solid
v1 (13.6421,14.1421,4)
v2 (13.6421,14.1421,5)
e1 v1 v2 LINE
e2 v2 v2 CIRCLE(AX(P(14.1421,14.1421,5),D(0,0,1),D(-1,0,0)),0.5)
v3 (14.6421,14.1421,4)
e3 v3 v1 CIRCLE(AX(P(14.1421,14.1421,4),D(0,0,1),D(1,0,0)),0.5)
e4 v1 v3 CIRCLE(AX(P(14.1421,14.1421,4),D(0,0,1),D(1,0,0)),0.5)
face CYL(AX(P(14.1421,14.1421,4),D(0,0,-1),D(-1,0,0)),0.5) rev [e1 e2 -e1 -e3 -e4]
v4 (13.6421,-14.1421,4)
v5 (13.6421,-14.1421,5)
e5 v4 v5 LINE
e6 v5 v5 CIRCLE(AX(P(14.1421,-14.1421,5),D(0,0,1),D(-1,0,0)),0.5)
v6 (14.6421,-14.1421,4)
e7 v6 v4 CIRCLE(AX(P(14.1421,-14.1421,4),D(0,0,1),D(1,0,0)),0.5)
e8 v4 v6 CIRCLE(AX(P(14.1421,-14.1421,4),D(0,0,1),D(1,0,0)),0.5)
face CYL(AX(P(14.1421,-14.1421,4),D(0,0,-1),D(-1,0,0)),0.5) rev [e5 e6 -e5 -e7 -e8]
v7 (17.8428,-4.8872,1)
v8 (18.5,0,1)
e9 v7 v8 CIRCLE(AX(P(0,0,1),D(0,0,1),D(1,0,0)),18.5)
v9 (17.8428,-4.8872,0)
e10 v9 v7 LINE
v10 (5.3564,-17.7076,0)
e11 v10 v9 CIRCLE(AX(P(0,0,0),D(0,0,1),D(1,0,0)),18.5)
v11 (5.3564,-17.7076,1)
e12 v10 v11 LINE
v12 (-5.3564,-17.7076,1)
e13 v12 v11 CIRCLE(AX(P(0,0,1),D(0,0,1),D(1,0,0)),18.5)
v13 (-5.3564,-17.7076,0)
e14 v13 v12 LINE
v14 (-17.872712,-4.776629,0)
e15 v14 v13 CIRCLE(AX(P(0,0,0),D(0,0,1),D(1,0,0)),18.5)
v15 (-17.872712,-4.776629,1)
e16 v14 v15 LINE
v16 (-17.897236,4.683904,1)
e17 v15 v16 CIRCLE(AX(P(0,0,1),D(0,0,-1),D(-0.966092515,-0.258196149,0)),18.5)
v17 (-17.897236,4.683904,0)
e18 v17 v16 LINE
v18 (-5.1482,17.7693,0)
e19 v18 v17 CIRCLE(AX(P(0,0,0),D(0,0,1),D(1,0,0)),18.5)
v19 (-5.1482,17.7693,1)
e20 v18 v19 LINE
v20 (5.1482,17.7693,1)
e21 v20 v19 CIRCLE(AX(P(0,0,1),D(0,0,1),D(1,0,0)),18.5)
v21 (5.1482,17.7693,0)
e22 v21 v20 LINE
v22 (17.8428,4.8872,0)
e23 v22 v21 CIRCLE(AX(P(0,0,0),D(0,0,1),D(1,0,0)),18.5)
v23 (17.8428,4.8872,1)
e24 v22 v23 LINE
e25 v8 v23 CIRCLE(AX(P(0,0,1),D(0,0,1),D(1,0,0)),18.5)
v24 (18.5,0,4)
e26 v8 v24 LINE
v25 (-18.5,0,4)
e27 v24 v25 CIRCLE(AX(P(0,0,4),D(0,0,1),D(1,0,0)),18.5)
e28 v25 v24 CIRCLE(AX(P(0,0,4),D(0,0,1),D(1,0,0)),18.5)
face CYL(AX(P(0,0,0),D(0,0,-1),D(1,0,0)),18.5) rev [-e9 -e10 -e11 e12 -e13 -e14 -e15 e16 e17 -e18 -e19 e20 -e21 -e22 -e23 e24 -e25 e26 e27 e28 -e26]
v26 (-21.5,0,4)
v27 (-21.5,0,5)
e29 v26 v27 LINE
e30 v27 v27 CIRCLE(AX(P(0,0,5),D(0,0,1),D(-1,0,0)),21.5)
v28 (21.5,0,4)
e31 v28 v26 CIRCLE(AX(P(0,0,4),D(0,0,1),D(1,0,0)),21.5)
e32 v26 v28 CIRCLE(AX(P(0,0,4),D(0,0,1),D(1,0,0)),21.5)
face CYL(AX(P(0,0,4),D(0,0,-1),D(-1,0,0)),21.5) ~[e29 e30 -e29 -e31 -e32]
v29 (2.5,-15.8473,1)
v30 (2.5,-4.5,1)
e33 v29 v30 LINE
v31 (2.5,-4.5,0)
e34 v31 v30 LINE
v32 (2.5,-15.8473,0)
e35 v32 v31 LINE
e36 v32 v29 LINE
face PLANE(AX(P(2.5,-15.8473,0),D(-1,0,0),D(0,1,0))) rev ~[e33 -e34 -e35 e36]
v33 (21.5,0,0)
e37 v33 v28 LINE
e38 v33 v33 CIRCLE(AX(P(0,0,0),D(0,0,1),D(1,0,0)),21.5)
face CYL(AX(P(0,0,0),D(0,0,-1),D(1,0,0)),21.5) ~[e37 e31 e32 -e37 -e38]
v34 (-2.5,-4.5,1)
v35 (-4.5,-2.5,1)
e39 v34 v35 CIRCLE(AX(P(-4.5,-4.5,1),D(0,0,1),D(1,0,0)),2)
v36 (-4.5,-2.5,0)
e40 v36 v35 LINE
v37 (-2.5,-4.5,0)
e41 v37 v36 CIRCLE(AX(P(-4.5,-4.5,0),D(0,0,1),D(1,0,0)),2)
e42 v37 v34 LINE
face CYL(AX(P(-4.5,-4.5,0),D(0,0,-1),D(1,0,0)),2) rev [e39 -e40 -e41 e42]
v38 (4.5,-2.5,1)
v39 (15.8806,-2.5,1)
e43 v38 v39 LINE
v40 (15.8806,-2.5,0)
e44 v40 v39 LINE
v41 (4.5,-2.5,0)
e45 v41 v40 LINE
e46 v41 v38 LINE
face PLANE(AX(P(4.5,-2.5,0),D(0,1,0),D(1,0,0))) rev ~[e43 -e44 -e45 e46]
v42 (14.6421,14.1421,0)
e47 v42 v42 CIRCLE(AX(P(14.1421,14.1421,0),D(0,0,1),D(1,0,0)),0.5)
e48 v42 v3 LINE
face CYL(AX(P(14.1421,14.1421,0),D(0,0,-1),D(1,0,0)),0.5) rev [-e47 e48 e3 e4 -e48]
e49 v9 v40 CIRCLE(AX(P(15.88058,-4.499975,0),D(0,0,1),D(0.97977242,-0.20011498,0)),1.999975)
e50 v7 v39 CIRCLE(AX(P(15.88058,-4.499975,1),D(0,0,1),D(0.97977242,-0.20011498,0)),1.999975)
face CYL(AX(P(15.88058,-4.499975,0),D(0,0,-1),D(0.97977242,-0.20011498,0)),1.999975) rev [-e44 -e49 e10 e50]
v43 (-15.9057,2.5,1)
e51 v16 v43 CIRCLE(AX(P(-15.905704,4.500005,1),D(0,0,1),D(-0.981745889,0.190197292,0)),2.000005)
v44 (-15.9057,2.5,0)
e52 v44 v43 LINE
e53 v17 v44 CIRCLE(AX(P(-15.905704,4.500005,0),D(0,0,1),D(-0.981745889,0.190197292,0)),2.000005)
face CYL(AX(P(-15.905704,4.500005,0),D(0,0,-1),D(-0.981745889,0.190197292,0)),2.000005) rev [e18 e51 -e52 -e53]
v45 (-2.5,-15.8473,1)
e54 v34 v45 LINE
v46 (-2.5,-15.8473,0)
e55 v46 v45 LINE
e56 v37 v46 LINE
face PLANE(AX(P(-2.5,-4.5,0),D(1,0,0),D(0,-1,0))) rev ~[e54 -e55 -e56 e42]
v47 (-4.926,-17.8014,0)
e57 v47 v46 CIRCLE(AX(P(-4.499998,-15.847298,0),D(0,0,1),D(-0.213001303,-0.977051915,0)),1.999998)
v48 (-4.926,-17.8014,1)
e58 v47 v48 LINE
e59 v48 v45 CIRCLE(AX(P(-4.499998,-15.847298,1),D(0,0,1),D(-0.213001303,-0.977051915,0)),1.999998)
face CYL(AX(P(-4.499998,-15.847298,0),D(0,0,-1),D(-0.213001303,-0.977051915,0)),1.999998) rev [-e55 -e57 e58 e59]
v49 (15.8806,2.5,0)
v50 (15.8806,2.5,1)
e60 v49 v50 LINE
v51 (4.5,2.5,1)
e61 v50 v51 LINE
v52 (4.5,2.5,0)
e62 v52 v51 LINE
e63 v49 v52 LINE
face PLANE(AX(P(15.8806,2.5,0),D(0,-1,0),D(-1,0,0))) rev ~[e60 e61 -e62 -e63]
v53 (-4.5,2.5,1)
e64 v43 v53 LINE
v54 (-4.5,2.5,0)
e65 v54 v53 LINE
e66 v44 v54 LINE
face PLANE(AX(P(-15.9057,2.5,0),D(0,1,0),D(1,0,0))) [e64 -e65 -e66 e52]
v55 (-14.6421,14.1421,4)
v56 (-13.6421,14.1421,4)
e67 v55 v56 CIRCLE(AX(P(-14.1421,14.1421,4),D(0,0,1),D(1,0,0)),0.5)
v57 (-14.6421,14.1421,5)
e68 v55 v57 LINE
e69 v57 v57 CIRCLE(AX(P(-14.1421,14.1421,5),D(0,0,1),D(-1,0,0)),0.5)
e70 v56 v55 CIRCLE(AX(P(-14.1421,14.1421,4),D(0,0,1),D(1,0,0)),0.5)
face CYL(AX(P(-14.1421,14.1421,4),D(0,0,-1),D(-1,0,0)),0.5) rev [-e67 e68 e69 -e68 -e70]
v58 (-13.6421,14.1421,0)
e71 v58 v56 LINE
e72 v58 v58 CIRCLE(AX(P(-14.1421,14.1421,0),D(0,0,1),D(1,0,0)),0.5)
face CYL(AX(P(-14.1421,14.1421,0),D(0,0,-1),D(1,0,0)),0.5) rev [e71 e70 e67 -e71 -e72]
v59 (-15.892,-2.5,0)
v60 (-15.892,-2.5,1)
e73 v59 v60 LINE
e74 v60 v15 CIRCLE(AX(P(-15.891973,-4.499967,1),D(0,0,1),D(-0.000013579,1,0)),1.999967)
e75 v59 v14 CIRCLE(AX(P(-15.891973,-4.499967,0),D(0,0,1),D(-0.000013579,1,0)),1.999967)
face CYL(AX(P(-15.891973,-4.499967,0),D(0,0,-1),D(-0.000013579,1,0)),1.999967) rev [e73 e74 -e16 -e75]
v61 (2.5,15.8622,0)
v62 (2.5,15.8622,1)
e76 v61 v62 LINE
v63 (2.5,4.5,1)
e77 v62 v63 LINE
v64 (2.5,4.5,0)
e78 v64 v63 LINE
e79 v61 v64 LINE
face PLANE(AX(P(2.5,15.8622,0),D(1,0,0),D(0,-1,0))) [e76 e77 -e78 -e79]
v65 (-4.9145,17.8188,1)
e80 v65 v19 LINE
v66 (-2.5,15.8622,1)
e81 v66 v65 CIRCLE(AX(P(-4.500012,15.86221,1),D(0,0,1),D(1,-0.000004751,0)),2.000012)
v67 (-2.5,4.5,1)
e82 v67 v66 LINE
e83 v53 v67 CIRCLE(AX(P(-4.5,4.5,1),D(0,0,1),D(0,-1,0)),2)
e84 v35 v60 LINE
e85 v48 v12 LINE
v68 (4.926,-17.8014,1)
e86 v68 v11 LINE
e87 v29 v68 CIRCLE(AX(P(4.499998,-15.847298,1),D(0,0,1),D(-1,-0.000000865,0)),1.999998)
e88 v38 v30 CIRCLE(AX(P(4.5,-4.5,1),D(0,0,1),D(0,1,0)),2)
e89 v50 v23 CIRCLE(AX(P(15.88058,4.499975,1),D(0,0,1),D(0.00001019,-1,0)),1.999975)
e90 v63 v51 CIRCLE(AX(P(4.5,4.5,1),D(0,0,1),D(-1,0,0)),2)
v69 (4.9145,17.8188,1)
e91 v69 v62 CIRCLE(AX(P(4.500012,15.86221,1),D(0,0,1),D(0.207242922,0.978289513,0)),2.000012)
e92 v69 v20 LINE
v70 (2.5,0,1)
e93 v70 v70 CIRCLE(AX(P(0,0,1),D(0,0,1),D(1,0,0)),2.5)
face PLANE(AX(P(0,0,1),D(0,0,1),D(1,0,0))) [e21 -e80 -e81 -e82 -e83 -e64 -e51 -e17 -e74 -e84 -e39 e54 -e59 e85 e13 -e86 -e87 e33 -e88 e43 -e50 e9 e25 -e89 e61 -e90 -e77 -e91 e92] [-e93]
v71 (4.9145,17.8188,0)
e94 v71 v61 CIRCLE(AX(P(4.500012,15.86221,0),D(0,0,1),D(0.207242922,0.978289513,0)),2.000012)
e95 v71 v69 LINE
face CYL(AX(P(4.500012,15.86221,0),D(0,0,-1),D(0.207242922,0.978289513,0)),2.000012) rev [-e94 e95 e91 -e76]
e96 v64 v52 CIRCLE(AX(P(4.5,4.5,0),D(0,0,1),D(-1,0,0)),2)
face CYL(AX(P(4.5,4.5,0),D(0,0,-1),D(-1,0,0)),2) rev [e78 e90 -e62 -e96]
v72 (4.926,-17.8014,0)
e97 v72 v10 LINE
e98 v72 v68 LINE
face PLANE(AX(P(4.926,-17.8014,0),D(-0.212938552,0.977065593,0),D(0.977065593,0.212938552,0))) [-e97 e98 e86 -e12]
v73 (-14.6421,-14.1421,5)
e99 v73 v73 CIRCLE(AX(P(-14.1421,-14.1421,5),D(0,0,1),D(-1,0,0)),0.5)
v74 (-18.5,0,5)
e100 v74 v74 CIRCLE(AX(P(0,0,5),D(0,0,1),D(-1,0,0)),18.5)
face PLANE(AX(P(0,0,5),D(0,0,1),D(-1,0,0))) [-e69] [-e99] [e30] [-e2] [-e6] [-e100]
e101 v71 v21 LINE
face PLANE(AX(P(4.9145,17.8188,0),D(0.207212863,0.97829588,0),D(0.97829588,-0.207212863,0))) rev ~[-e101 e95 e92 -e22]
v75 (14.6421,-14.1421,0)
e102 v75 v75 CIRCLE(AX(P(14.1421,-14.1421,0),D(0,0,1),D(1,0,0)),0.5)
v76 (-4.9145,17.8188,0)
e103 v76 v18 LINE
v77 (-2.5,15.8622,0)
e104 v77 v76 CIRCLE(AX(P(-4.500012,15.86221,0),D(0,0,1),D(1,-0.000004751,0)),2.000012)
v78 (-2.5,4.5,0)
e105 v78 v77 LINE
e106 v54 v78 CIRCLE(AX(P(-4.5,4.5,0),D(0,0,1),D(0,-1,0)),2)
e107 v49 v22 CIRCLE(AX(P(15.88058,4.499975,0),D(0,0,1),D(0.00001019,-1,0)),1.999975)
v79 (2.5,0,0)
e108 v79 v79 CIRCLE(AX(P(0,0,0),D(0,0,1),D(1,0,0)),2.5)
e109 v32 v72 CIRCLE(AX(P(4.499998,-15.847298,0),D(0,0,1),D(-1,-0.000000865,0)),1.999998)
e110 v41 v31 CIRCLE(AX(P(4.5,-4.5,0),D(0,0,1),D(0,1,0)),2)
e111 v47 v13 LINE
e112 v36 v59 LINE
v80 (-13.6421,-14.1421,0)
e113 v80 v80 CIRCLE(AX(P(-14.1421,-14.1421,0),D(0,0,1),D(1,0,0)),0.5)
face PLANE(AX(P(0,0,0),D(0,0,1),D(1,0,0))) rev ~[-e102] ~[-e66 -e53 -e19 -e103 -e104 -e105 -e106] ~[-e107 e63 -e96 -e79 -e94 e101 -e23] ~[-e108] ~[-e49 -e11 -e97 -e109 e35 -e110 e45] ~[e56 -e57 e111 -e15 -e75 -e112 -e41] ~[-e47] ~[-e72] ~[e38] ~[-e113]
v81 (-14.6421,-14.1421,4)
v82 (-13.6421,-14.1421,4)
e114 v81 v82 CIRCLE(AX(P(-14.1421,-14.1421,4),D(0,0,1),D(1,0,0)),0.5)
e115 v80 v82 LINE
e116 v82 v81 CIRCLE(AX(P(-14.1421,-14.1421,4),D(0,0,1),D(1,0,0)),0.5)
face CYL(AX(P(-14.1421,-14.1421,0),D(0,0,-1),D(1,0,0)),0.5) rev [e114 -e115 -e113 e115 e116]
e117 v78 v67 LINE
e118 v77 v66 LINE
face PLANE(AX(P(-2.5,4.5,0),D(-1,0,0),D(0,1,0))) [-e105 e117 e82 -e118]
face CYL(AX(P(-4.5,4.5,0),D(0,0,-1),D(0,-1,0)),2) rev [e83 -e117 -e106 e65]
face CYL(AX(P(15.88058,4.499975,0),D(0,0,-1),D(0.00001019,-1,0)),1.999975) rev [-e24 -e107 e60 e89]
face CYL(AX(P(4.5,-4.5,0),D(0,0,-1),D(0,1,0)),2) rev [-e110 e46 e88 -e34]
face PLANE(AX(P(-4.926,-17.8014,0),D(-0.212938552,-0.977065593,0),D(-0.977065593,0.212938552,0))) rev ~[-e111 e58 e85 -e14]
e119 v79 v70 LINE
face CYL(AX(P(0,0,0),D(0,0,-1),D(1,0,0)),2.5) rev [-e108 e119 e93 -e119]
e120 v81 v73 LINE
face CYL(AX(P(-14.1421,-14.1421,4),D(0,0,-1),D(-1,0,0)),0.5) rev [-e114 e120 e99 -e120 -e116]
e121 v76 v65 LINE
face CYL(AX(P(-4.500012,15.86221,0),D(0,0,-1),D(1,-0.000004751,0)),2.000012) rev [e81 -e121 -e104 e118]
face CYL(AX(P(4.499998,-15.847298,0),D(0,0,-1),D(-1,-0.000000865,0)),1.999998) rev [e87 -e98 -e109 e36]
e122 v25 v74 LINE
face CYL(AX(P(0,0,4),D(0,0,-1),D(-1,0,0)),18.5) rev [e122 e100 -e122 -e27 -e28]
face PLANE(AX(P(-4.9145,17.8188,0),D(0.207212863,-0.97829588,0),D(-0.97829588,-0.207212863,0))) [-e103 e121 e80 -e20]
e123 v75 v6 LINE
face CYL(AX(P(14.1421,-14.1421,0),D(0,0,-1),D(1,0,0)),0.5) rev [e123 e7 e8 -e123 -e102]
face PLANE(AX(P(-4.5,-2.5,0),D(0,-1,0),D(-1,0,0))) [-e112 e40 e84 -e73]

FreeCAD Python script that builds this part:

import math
import FreeCAD as App
import Part
import Sketcher
Q = App.Units.Quantity

doc = App.newDocument("Part")
body = doc.addObject("PartDesign::Body", "Body")

# Sketch on XY plane
sketch1 = body.newObject("Sketcher::SketchObject", "Sketch")
sketch1.AttachmentSupport = (doc.getObject("XY_Plane"), [""])
sketch1.MapMode = "FlatFace"
sketch1.addGeometry([
    Part.ArcOfCircle(Part.Circle(App.Vector(0, 0, 0), App.Vector(0, 0, 1), 18.5), math.radians(-15), math.radians(15)),  # 0
    Part.ArcOfCircle(Part.Circle(App.Vector(15.88, 4.5, 0), App.Vector(0, 0, 1), 2), math.radians(-90), math.radians(11)),  # 1
    Part.LineSegment(App.Vector(15.88, 2.5, 0), App.Vector(4.5, 2.5, 0)),  # 2
    Part.ArcOfCircle(Part.Circle(App.Vector(4.5, 4.5, 0), App.Vector(0, 0, 1), 2), math.radians(180), math.radians(270)),  # 3
    Part.LineSegment(App.Vector(2.5, 4.5, 0), App.Vector(2.5, 15.86, 0)),  # 4
    Part.ArcOfCircle(Part.Circle(App.Vector(4.5, 15.86, 0), App.Vector(0, 0, 1), 2), math.radians(78), math.radians(180)),  # 5
    Part.LineSegment(App.Vector(4.91, 17.82, 0), App.Vector(5.15, 17.77, 0)),  # 6
    Part.ArcOfCircle(Part.Circle(App.Vector(0, 0, 0), App.Vector(0, 0, 1), 18.5), math.radians(74), math.radians(106)),  # 7
    Part.LineSegment(App.Vector(-5.15, 17.77, 0), App.Vector(-4.91, 17.82, 0)),  # 8
    Part.ArcOfCircle(Part.Circle(App.Vector(-4.5, 15.86, 0), App.Vector(0, 0, 1), 2), math.radians(0), math.radians(102)),  # 9
    Part.LineSegment(App.Vector(-2.5, 15.86, 0), App.Vector(-2.5, 4.5, 0)),  # 10
    Part.ArcOfCircle(Part.Circle(App.Vector(-4.5, 4.5, 0), App.Vector(0, 0, 1), 2), math.radians(-90), math.radians(0)),  # 11
    Part.LineSegment(App.Vector(-4.5, 2.5, 0), App.Vector(-15.91, 2.5, 0)),  # 12
    Part.ArcOfCircle(Part.Circle(App.Vector(-15.91, 4.5, 0), App.Vector(0, 0, 1), 2), math.radians(175), math.radians(270)),  # 13
    Part.ArcOfCircle(Part.Circle(App.Vector(0, 0, 0), App.Vector(0, 0, 1), 18.5), math.radians(165), math.radians(195)),  # 14
    Part.ArcOfCircle(Part.Circle(App.Vector(-15.89, -4.5, 0), App.Vector(0, 0, 1), 2), math.radians(90), math.radians(188)),  # 15
    Part.LineSegment(App.Vector(-15.89, -2.5, 0), App.Vector(-4.5, -2.5, 0)),  # 16
    Part.ArcOfCircle(Part.Circle(App.Vector(-4.5, -4.5, 0), App.Vector(0, 0, 1), 2), math.radians(0), math.radians(90)),  # 17
    Part.LineSegment(App.Vector(-2.5, -4.5, 0), App.Vector(-2.5, -15.85, 0)),  # 18
    Part.ArcOfCircle(Part.Circle(App.Vector(-4.5, -15.85, 0), App.Vector(0, 0, 1), 2), math.radians(-102), math.radians(0)),  # 19
    Part.LineSegment(App.Vector(-4.93, -17.8, 0), App.Vector(-5.36, -17.71, 0)),  # 20
    Part.ArcOfCircle(Part.Circle(App.Vector(0, 0, 0), App.Vector(0, 0, 1), 18.5), math.radians(-107), math.radians(-73)),  # 21
    Part.LineSegment(App.Vector(5.36, -17.71, 0), App.Vector(4.93, -17.8, 0)),  # 22
    Part.ArcOfCircle(Part.Circle(App.Vector(4.5, -15.85, 0), App.Vector(0, 0, 1), 2), math.radians(180), math.radians(282)),  # 23
    Part.LineSegment(App.Vector(2.5, -15.85, 0), App.Vector(2.5, -4.5, 0)),  # 24
    Part.ArcOfCircle(Part.Circle(App.Vector(4.5, -4.5, 0), App.Vector(0, 0, 1), 2), math.radians(90), math.radians(180)),  # 25
    Part.LineSegment(App.Vector(4.5, -2.5, 0), App.Vector(15.88, -2.5, 0)),  # 26
    Part.ArcOfCircle(Part.Circle(App.Vector(15.88, -4.5, 0), App.Vector(0, 0, 1), 2), math.radians(-11), math.radians(90)),  # 27
    Part.Circle(App.Vector(0, 0, 0), App.Vector(0, 0, 1), 2.5),  # 28
], False)
sketch1.addConstraint([
    Sketcher.Constraint("Coincident", 0, 2, 1, 2),
    Sketcher.Constraint("Tangent", 1, 1, 2, 1),
    Sketcher.Constraint("Tangent", 2, 2, 3, 2),
    Sketcher.Constraint("Tangent", 3, 1, 4, 1),
    Sketcher.Constraint("Tangent", 4, 2, 5, 2),
    Sketcher.Constraint("Tangent", 5, 1, 6, 1),
    Sketcher.Constraint("Coincident", 6, 2, 7, 1),
    Sketcher.Constraint("Coincident", 7, 2, 8, 1),
    Sketcher.Constraint("Tangent", 8, 2, 9, 2),
    Sketcher.Constraint("Tangent", 9, 1, 10, 1),
    Sketcher.Constraint("Tangent", 10, 2, 11, 2),
    Sketcher.Constraint("Tangent", 11, 1, 12, 1),
    Sketcher.Constraint("Tangent", 12, 2, 13, 2),
    Sketcher.Constraint("Coincident", 13, 1, 14, 1),
    Sketcher.Constraint("Coincident", 14, 2, 15, 2),
    Sketcher.Constraint("Tangent", 15, 1, 16, 1),
    Sketcher.Constraint("Tangent", 16, 2, 17, 2),
    Sketcher.Constraint("Tangent", 17, 1, 18, 1),
    Sketcher.Constraint("Tangent", 18, 2, 19, 2),
    Sketcher.Constraint("Tangent", 19, 1, 20, 1),
    Sketcher.Constraint("Coincident", 20, 2, 21, 1),
    Sketcher.Constraint("Coincident", 21, 2, 22, 1),
    Sketcher.Constraint("Tangent", 22, 2, 23, 2),
    Sketcher.Constraint("Tangent", 23, 1, 24, 1),
    Sketcher.Constraint("Tangent", 24, 2, 25, 2),
    Sketcher.Constraint("Tangent", 25, 1, 26, 1),
    Sketcher.Constraint("Tangent", 26, 2, 27, 2),
    Sketcher.Constraint("Coincident", 27, 1, 0, 1),
    Sketcher.Constraint("Horizontal", 2),
    Sketcher.Constraint("Vertical", 4),
    Sketcher.Constraint("Vertical", 10),
    Sketcher.Constraint("Horizontal", 12),
    Sketcher.Constraint("Horizontal", 16),
    Sketcher.Constraint("Vertical", 18),
    Sketcher.Constraint("Vertical", 24),
    Sketcher.Constraint("Horizontal", 26),
    Sketcher.Constraint("Coincident", 0, 3, -1, 1),
    Sketcher.Constraint("Coincident", 7, 3, -1, 1),
    Sketcher.Constraint("Coincident", 14, 3, -1, 1),
    Sketcher.Constraint("Coincident", 21, 3, -1, 1),
    Sketcher.Constraint("Coincident", 28, 3, -1, 1),
    Sketcher.Constraint("Equal", 1, 3),
    Sketcher.Constraint("Equal", 3, 5),
    Sketcher.Constraint("Equal", 0, 7),
    Sketcher.Constraint("Equal", 5, 9),
    Sketcher.Constraint("Equal", 9, 11),
    Sketcher.Constraint("Equal", 11, 13),
    Sketcher.Constraint("Equal", 7, 14),
    Sketcher.Constraint("Equal", 13, 15),
    Sketcher.Constraint("Equal", 15, 17),
    Sketcher.Constraint("Equal", 17, 19),
    Sketcher.Constraint("Equal", 14, 21),
    Sketcher.Constraint("Equal", 19, 23),
    Sketcher.Constraint("Equal", 23, 25),
    Sketcher.Constraint("Equal", 25, 27),
    Sketcher.Constraint("Symmetric", 3, 3, 17, 3, -1, 1),
    Sketcher.Constraint("Symmetric", 11, 3, 25, 3, -1, 1),
    Sketcher.Constraint("Symmetric", 5, 3, 9, 3, -2),
    Sketcher.Constraint("Symmetric", 19, 1, 22, 2, -2),
    Sketcher.Constraint("Symmetric", 1, 3, 27, 3, -1),
    Sketcher.Constraint("Horizontal", 6, 2, 7, 2),
    Sketcher.Constraint("Diameter", 28, Q("5 mm")),
    Sketcher.Constraint("Radius", 1, Q("2 mm")),
    Sketcher.Constraint("Radius", 0, Q("18.5 mm")),
    Sketcher.Constraint("DistanceX", 9, 1, 4, 2, Q("5 mm")),
    Sketcher.Constraint("DistanceY", 15, 1, 12, 2, Q("5 mm")),
    Sketcher.Constraint("Angle", 6, Q("-11.959 deg")),
    Sketcher.Constraint("DistanceX", 16, 1, 16, 2, Q("11.392 mm")),
    Sketcher.Constraint("Distance", 6, Q("0.239 mm")),
    Sketcher.Constraint("DistanceX", 2, 2, 2, 1, Q("11.3806 mm")),
    Sketcher.Constraint("DistanceX", 12, 2, 12, 1, Q("11.4057 mm")),
    Sketcher.Constraint("DistanceY", 18, 2, 18, 1, Q("11.3473 mm")),
    Sketcher.Constraint("DistanceX", 19, 1, -1, 1, Q("4.926 mm")),
])
pad1 = body.newObject("PartDesign::Pad", "Pad")
pad1.Profile = sketch1
pad1.Length = 1

# Sketch on XY plane
sketch2 = body.newObject("Sketcher::SketchObject", "Sketch001")
sketch2.AttachmentSupport = (doc.getObject("XY_Plane"), [""])
sketch2.MapMode = "FlatFace"
sketch2.addGeometry([
    Part.Circle(App.Vector(0, 0, 0), App.Vector(0, 0, 1), 21.5),  # 0
    Part.Circle(App.Vector(-14.1, -14.1, 0), App.Vector(0, 0, 1), 0.5),  # 1
    Part.Circle(App.Vector(14.1, -14.1, 0), App.Vector(0, 0, 1), 0.5),  # 2
    Part.Circle(App.Vector(-14.1, 14.1, 0), App.Vector(0, 0, 1), 0.5),  # 3
    Part.Circle(App.Vector(0, 0, 0), App.Vector(0, 0, 1), 18.5),  # 4
    Part.Circle(App.Vector(14.1, 14.1, 0), App.Vector(0, 0, 1), 0.5),  # 5
], False)
sketch2.addConstraint([
    Sketcher.Constraint("Coincident", 0, 3, -1, 1),
    Sketcher.Constraint("Coincident", 4, 3, -1, 1),
    Sketcher.Constraint("Equal", 1, 2),
    Sketcher.Constraint("Equal", 2, 3),
    Sketcher.Constraint("Equal", 3, 5),
    Sketcher.Constraint("Symmetric", 2, 3, 3, 3, -1, 1),
    Sketcher.Constraint("Symmetric", 1, 3, 5, 3, -1, 1),
    Sketcher.Constraint("Symmetric", 1, 3, 2, 3, -2),
    Sketcher.Constraint("Diameter", 0, Q("43 mm")),
    Sketcher.Constraint("Diameter", 1, Q("1 mm")),
    Sketcher.Constraint("Diameter", 4, Q("37 mm")),
    Sketcher.Constraint("DistanceX", 1, 3, -1, 1, Q("14.142 mm")),
    Sketcher.Constraint("DistanceY", 1, 3, -1, 1, Q("14.142 mm")),
])
pad2 = body.newObject("PartDesign::Pad", "Pad001")
pad2.Profile = sketch2
pad2.Length = 4

# Sketch on XY plane
sketch3 = body.newObject("Sketcher::SketchObject", "Sketch002")
sketch3.AttachmentSupport = (doc.getObject("XY_Plane"), [""])
sketch3.MapMode = "FlatFace"
sketch3.AttachmentOffset = App.Placement(App.Vector(0, 0, 4), App.Rotation())
sketch3.addGeometry([
    Part.Circle(App.Vector(0, 0, 0), App.Vector(0, 0, 1), 21.5),  # 0
    Part.Circle(App.Vector(14.1, 14.1, 0), App.Vector(0, 0, 1), 0.5),  # 1
    Part.Circle(App.Vector(-14.1, 14.1, 0), App.Vector(0, 0, 1), 0.5),  # 2
    Part.Circle(App.Vector(14.1, -14.1, 0), App.Vector(0, 0, 1), 0.5),  # 3
    Part.Circle(App.Vector(0, 0, 0), App.Vector(0, 0, 1), 18.5),  # 4
    Part.Circle(App.Vector(-14.1, -14.1, 0), App.Vector(0, 0, 1), 0.5),  # 5
], False)
sketch3.addConstraint([
    Sketcher.Constraint("Coincident", 0, 3, -1, 1),
    Sketcher.Constraint("Coincident", 4, 3, -1, 1),
    Sketcher.Constraint("Equal", 1, 2),
    Sketcher.Constraint("Equal", 2, 3),
    Sketcher.Constraint("Equal", 3, 5),
    Sketcher.Constraint("Symmetric", 2, 3, 3, 3, -1, 1),
    Sketcher.Constraint("Symmetric", 1, 3, 5, 3, -1, 1),
    Sketcher.Constraint("Symmetric", 1, 3, 2, 3, -2),
    Sketcher.Constraint("Diameter", 0, Q("43 mm")),
    Sketcher.Constraint("Diameter", 1, Q("1 mm")),
    Sketcher.Constraint("Diameter", 4, Q("37 mm")),
    Sketcher.Constraint("DistanceX", -1, 1, 1, 3, Q("14.142 mm")),
    Sketcher.Constraint("DistanceY", -1, 1, 1, 3, Q("14.142 mm")),
])
pad3 = body.newObject("PartDesign::Pad", "Pad002")
pad3.Profile = sketch3
pad3.Length = 1

doc.recompute()
